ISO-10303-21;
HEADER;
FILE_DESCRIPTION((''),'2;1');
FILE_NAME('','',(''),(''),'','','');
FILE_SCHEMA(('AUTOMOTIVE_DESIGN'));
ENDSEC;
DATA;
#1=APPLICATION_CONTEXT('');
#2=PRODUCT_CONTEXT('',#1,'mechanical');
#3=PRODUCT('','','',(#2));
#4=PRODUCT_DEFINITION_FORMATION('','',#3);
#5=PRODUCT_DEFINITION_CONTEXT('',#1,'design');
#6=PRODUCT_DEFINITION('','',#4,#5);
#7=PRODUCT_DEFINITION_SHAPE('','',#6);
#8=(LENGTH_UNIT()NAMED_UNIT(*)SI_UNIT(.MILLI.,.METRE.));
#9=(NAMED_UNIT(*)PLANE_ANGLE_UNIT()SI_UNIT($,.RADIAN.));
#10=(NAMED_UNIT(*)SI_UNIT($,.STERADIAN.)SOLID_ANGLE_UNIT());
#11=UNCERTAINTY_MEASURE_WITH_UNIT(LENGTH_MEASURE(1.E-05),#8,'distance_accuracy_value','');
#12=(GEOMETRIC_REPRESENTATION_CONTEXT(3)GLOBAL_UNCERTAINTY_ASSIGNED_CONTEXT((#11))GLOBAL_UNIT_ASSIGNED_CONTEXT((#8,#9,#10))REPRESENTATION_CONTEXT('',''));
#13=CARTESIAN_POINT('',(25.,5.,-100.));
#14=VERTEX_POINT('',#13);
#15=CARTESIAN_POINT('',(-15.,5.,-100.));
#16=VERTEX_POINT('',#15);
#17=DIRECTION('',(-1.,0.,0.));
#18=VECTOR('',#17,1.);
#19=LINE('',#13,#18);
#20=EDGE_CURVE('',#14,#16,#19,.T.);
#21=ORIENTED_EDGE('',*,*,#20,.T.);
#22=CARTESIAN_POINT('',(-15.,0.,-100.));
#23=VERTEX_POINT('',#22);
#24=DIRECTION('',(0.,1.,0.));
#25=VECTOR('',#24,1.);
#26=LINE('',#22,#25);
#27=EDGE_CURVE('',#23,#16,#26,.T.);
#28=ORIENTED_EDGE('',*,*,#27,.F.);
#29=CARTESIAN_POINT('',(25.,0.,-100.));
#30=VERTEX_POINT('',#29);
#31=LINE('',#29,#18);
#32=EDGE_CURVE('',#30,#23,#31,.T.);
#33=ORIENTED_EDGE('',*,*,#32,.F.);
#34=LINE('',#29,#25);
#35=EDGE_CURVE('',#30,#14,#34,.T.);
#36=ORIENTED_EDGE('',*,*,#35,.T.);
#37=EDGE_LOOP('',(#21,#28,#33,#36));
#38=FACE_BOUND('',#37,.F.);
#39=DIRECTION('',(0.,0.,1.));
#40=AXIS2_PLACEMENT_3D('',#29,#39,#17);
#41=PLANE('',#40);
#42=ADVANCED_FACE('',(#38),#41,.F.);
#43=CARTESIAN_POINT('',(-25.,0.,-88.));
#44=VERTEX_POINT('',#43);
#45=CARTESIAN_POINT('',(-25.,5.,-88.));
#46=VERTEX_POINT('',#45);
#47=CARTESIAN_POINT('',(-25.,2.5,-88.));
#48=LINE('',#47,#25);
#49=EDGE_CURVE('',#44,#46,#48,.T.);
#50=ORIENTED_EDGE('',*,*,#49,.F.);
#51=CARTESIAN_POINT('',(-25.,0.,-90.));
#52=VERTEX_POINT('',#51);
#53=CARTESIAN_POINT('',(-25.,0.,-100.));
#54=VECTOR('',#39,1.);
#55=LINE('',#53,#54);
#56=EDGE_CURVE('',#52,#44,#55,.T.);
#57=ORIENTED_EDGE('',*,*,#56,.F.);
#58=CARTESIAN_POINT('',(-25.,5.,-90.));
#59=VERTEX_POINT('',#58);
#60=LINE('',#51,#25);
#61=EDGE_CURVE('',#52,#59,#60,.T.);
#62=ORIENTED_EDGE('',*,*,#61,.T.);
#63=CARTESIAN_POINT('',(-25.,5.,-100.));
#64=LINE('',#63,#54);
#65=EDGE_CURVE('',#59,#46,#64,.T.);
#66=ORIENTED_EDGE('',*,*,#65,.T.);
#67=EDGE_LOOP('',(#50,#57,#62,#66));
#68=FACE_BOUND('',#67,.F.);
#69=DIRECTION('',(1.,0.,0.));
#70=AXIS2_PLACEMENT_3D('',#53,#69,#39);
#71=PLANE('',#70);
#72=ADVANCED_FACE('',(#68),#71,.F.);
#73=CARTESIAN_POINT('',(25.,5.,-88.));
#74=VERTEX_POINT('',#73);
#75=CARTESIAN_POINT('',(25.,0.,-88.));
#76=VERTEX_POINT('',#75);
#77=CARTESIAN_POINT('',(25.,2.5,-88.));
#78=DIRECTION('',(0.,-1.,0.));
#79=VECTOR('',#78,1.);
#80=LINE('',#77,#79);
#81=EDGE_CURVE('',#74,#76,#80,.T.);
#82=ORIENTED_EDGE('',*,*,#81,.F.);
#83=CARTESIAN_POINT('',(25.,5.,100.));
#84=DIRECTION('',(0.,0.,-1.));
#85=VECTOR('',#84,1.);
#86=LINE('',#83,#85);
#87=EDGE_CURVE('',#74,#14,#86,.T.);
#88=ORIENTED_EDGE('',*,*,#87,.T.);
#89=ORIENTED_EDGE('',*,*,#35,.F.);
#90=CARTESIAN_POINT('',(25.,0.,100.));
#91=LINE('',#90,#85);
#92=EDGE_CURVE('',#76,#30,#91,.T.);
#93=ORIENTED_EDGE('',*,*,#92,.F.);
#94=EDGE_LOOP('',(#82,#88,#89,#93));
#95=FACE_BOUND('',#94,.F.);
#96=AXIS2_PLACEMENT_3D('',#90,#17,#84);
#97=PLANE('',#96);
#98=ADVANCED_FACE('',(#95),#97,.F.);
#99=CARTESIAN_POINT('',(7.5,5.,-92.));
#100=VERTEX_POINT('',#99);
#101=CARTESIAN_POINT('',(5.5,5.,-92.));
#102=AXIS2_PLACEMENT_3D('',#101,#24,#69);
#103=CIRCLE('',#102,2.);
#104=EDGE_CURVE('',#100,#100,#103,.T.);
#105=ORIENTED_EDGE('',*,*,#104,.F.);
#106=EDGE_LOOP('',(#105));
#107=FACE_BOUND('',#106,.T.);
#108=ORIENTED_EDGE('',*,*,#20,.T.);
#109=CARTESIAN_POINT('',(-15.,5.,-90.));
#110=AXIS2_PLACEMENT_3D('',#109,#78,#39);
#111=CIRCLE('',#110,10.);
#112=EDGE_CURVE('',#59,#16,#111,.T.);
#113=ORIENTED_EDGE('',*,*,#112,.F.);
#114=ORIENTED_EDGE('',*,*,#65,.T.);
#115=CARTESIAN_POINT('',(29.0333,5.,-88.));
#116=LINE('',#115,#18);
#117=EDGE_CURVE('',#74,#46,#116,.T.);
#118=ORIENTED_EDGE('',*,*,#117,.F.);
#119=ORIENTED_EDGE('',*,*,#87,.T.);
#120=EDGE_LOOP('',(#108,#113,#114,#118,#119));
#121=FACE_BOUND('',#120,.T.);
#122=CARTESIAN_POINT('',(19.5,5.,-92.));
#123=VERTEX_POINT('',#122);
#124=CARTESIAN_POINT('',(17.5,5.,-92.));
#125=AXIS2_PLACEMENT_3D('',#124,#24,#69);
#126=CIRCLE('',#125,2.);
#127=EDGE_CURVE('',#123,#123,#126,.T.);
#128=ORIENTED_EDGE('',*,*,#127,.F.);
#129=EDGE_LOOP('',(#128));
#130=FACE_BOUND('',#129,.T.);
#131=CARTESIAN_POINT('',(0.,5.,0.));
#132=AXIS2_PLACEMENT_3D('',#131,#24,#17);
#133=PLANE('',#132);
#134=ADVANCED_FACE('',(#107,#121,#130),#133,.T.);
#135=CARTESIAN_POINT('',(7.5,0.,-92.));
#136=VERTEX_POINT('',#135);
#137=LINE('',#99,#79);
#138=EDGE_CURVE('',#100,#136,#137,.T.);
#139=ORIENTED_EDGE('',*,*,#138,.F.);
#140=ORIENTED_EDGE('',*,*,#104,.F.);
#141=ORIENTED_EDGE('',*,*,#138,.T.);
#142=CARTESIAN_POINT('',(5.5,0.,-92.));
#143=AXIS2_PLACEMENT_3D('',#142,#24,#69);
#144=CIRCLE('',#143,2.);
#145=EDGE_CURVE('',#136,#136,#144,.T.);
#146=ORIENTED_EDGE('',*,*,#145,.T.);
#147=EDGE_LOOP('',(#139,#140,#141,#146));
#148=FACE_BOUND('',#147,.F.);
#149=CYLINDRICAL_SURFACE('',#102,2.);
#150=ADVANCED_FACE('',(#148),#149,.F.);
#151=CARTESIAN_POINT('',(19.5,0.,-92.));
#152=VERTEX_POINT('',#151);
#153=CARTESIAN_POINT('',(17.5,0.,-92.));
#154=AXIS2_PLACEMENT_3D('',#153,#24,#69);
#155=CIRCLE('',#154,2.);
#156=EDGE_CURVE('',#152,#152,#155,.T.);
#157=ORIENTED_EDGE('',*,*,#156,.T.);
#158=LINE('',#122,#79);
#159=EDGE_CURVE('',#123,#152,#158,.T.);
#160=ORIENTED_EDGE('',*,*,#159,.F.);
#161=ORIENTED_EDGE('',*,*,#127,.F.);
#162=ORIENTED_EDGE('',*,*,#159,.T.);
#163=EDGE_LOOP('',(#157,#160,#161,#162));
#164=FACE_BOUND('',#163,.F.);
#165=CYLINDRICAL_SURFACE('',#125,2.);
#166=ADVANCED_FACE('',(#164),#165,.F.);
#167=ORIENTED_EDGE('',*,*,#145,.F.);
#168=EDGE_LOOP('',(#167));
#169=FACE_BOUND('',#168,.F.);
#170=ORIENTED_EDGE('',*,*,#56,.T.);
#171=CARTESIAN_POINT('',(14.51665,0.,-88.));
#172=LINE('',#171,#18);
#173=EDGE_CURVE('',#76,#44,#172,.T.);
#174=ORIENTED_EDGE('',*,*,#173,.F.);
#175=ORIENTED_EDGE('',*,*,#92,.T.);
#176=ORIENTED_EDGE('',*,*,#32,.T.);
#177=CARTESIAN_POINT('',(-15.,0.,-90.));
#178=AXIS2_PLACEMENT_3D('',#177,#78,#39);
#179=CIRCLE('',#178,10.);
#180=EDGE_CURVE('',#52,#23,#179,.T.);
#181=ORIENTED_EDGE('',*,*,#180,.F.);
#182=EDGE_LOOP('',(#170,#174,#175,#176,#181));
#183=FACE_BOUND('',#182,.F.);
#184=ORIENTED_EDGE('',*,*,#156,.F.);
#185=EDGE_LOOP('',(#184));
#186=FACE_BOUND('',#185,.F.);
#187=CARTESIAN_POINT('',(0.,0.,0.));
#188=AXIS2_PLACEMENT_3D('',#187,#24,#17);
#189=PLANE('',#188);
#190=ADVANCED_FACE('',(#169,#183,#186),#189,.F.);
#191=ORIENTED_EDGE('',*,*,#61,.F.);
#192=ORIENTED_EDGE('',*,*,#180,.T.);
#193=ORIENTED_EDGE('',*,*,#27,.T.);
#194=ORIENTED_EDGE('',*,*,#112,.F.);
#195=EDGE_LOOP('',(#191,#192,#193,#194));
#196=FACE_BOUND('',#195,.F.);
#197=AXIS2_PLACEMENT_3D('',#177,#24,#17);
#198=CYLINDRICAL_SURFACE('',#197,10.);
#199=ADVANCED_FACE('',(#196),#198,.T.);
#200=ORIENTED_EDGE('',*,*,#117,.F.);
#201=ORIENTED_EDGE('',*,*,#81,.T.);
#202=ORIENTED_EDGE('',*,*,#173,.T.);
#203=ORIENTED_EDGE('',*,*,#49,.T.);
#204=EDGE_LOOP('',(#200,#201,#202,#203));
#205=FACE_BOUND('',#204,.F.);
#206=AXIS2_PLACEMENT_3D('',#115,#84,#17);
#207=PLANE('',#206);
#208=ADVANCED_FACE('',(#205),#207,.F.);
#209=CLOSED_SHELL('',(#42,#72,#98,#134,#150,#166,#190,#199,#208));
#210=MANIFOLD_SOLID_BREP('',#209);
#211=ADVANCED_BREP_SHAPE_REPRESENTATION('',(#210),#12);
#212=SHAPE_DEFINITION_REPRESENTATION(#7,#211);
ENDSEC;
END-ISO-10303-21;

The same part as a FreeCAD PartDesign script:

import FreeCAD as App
import Part
import Sketcher


def edges_at(feature, points):
    """Names of the edges that pass closest to the given points."""
    edges = feature.Shape.Edges
    near = lambda p: min(range(len(edges)), key=lambda i: edges[i].distToShape(Part.Vertex(*p))[0])
    return sorted({f"Edge{near(p) + 1}" for p in points})


def add_polygon(sketch, points):
    """Adds a closed chain of lines whose ends are joined by coincident constraints."""
    first, n = sketch.GeometryCount, len(points)
    for a, b in zip(points, points[1:] + points[:1]):
        sketch.addGeometry(Part.LineSegment(App.Vector(*a, 0), App.Vector(*b, 0)), False)
    for i in range(n):
        sketch.addConstraint(Sketcher.Constraint("Coincident", first + i, 2, first + (i + 1) % n, 1))

doc = App.newDocument("Part")
body = doc.addObject("PartDesign::Body", "Body")

sketch1 = doc.addObject("Sketcher::SketchObject", "Sketch")
body.addObject(sketch1)
sketch1.AttachmentSupport = (doc.XZ_Plane, [""])
sketch1.MapMode = "FlatFace"
add_polygon(sketch1, [(-25, -100), (-25, 100), (25, 100), (25, -100)])
sketch1.addConstraint(Sketcher.Constraint("Vertical", 0))
sketch1.addConstraint(Sketcher.Constraint("Horizontal", 1))
sketch1.addConstraint(Sketcher.Constraint("Vertical", 2))
sketch1.addConstraint(Sketcher.Constraint("Horizontal", 3))
sketch1.addConstraint(Sketcher.Constraint("Symmetric", 0, 2, 2, 2, -1, 1))
sketch1.addConstraint(Sketcher.Constraint("DistanceX", 1, 1, 1, 2, 50.0))
sketch1.addConstraint(Sketcher.Constraint("DistanceY", 0, 1, 0, 2, 200.0))
pad1 = doc.addObject("PartDesign::Pad", "Pad")
body.addObject(pad1)
pad1.Profile = sketch1
pad1.Length = 5
pad1.Reversed = True

sketch2 = doc.addObject("Sketcher::SketchObject", "Sketch001")
body.addObject(sketch2)
sketch2.AttachmentSupport = (doc.XZ_Plane, [""])
sketch2.MapMode = "FlatFace"
sketch2.AttachmentOffset = App.Placement(App.Vector(0, 0, -5), App.Rotation())
sketch2.addGeometry(Part.Circle(App.Vector(17.5, 92, 0), App.Vector(0, 0, 1), 2), False)
sketch2.addGeometry(Part.Circle(App.Vector(5.5, 92, 0), App.Vector(0, 0, 1), 2), False)
sketch2.addGeometry(Part.Circle(App.Vector(17.5, -92, 0), App.Vector(0, 0, 1), 2), False)
sketch2.addGeometry(Part.Circle(App.Vector(5.5, -92, 0), App.Vector(0, 0, 1), 2), False)
sketch2.addConstraint(Sketcher.Constraint("Equal", 0, 1))
sketch2.addConstraint(Sketcher.Constraint("Equal", 1, 2))
sketch2.addConstraint(Sketcher.Constraint("Equal", 2, 3))
sketch2.addConstraint(Sketcher.Constraint("Symmetric", 0, 3, 2, 3, -1))
sketch2.addConstraint(Sketcher.Constraint("Symmetric", 1, 3, 3, 3, -1))
sketch2.addConstraint(Sketcher.Constraint("Horizontal", 0, 3, 1, 3))
sketch2.addConstraint(Sketcher.Constraint("Diameter", 0, 4.0))
sketch2.addConstraint(Sketcher.Constraint("DistanceX", 1, 3, 0, 3, 12.0))
sketch2.addConstraint(Sketcher.Constraint("DistanceY", -1, 1, 0, 3, 92.0))
sketch2.addConstraint(Sketcher.Constraint("DistanceX", -1, 1, 0, 3, 17.5))
pocket1 = doc.addObject("PartDesign::Pocket", "Pocket")
body.addObject(pocket1)
pocket1.Profile = sketch2
pocket1.Length = 5
pocket1.Reversed = True

sketch3 = doc.addObject("Sketcher::SketchObject", "Sketch002")
body.addObject(sketch3)
sketch3.AttachmentSupport = (doc.XZ_Plane, [""])
sketch3.MapMode = "FlatFace"
sketch3.AttachmentOffset = App.Placement(App.Vector(0, 0, -5), App.Rotation())
add_polygon(sketch3, [(19, -85), (19, 85), (31, 85), (31, -85)])
sketch3.addConstraint(Sketcher.Constraint("Vertical", 0))
sketch3.addConstraint(Sketcher.Constraint("Horizontal", 1))
sketch3.addConstraint(Sketcher.Constraint("Vertical", 2))
sketch3.addConstraint(Sketcher.Constraint("Horizontal", 3))
sketch3.addConstraint(Sketcher.Constraint("DistanceX", 1, 1, 1, 2, 12.0))
sketch3.addConstraint(Sketcher.Constraint("DistanceY", 0, 1, 0, 2, 170.0))
sketch3.addConstraint(Sketcher.Constraint("DistanceX", -1, 1, 0, 2, 19.0))
sketch3.addConstraint(Sketcher.Constraint("DistanceY", -1, 1, 0, 2, 85.0))
pad2 = doc.addObject("PartDesign::Pad", "Pad001")
body.addObject(pad2)
pad2.Profile = sketch3
pad2.Length = 5

sketch4 = doc.addObject("Sketcher::SketchObject", "Sketch003")
body.addObject(sketch4)
sketch4.AttachmentSupport = (doc.XZ_Plane, [""])
sketch4.MapMode = "FlatFace"
sketch4.AttachmentOffset = App.Placement(App.Vector(0, 0, -5), App.Rotation())
sketch4.addGeometry(Part.Circle(App.Vector(26, 75, 0), App.Vector(0, 0, 1), 2), False)
sketch4.addConstraint(Sketcher.Constraint("Diameter", 0, 4.0))
sketch4.addConstraint(Sketcher.Constraint("DistanceX", -1, 1, 0, 3, 26.0))
sketch4.addConstraint(Sketcher.Constraint("DistanceY", -1, 1, 0, 3, 75.0))
pocket2 = doc.addObject("PartDesign::Pocket", "Pocket001")
body.addObject(pocket2)
pocket2.Profile = sketch4
pocket2.Length = 5
pocket2.Reversed = True
doc.recompute()

linearpattern = doc.addObject("PartDesign::LinearPattern", "LinearPattern")
body.addObject(linearpattern)
linearpattern.Originals = [pocket2]
linearpattern.Direction = (doc.Z_Axis, [""])
linearpattern.Mode = "offset"
linearpattern.Offset = 30
linearpattern.Occurrences = 6
linearpattern.Reversed = True
body.Tip = linearpattern
doc.recompute()

fillet = doc.addObject("PartDesign::Fillet", "Fillet")
body.addObject(fillet)
fillet.Base = (linearpattern, edges_at(linearpattern, [(-25, 2.5, -100), (-25, 2.5, 100)]))
fillet.Radius = 10

sketch5 = doc.addObject("Sketcher::SketchObject", "Sketch004")
body.addObject(sketch5)
sketch5.AttachmentSupport = (doc.XZ_Plane, [""])
sketch5.MapMode = "FlatFace"
sketch5.AttachmentOffset = App.Placement(App.Vector(0, 0, -5), App.Rotation())
add_polygon(sketch5, [(31, -85), (29, -88), (-29, -88), (-29, 105), (31, 105)])
sketch5.addConstraint(Sketcher.Constraint("Horizontal", 1))
sketch5.addConstraint(Sketcher.Constraint("Vertical", 2))
sketch5.addConstraint(Sketcher.Constraint("Horizontal", 3))
sketch5.addConstraint(Sketcher.Constraint("Vertical", 4))
sketch5.addConstraint(Sketcher.Constraint("DistanceX", 3, 1, 3, 2, 60.0))
sketch5.addConstraint(Sketcher.Constraint("DistanceY", 2, 1, 2, 2, 193.0))
sketch5.addConstraint(Sketcher.Constraint("DistanceY", 4, 2, 4, 1, 190.0))
sketch5.addConstraint(Sketcher.Constraint("DistanceY", 0, 2, -1, 1, 88.0))
sketch5.addConstraint(Sketcher.Constraint("DistanceX", 1, 2, -1, 1, 29.0))
sketch5.addConstraint(Sketcher.Constraint("DistanceX", 1, 2, 1, 1, 58.0333))
pocket3 = doc.addObject("PartDesign::Pocket", "Pocket002")
body.addObject(pocket3)
pocket3.Profile = sketch5
pocket3.Length = 10
pocket3.Reversed = True

doc.recompute()
